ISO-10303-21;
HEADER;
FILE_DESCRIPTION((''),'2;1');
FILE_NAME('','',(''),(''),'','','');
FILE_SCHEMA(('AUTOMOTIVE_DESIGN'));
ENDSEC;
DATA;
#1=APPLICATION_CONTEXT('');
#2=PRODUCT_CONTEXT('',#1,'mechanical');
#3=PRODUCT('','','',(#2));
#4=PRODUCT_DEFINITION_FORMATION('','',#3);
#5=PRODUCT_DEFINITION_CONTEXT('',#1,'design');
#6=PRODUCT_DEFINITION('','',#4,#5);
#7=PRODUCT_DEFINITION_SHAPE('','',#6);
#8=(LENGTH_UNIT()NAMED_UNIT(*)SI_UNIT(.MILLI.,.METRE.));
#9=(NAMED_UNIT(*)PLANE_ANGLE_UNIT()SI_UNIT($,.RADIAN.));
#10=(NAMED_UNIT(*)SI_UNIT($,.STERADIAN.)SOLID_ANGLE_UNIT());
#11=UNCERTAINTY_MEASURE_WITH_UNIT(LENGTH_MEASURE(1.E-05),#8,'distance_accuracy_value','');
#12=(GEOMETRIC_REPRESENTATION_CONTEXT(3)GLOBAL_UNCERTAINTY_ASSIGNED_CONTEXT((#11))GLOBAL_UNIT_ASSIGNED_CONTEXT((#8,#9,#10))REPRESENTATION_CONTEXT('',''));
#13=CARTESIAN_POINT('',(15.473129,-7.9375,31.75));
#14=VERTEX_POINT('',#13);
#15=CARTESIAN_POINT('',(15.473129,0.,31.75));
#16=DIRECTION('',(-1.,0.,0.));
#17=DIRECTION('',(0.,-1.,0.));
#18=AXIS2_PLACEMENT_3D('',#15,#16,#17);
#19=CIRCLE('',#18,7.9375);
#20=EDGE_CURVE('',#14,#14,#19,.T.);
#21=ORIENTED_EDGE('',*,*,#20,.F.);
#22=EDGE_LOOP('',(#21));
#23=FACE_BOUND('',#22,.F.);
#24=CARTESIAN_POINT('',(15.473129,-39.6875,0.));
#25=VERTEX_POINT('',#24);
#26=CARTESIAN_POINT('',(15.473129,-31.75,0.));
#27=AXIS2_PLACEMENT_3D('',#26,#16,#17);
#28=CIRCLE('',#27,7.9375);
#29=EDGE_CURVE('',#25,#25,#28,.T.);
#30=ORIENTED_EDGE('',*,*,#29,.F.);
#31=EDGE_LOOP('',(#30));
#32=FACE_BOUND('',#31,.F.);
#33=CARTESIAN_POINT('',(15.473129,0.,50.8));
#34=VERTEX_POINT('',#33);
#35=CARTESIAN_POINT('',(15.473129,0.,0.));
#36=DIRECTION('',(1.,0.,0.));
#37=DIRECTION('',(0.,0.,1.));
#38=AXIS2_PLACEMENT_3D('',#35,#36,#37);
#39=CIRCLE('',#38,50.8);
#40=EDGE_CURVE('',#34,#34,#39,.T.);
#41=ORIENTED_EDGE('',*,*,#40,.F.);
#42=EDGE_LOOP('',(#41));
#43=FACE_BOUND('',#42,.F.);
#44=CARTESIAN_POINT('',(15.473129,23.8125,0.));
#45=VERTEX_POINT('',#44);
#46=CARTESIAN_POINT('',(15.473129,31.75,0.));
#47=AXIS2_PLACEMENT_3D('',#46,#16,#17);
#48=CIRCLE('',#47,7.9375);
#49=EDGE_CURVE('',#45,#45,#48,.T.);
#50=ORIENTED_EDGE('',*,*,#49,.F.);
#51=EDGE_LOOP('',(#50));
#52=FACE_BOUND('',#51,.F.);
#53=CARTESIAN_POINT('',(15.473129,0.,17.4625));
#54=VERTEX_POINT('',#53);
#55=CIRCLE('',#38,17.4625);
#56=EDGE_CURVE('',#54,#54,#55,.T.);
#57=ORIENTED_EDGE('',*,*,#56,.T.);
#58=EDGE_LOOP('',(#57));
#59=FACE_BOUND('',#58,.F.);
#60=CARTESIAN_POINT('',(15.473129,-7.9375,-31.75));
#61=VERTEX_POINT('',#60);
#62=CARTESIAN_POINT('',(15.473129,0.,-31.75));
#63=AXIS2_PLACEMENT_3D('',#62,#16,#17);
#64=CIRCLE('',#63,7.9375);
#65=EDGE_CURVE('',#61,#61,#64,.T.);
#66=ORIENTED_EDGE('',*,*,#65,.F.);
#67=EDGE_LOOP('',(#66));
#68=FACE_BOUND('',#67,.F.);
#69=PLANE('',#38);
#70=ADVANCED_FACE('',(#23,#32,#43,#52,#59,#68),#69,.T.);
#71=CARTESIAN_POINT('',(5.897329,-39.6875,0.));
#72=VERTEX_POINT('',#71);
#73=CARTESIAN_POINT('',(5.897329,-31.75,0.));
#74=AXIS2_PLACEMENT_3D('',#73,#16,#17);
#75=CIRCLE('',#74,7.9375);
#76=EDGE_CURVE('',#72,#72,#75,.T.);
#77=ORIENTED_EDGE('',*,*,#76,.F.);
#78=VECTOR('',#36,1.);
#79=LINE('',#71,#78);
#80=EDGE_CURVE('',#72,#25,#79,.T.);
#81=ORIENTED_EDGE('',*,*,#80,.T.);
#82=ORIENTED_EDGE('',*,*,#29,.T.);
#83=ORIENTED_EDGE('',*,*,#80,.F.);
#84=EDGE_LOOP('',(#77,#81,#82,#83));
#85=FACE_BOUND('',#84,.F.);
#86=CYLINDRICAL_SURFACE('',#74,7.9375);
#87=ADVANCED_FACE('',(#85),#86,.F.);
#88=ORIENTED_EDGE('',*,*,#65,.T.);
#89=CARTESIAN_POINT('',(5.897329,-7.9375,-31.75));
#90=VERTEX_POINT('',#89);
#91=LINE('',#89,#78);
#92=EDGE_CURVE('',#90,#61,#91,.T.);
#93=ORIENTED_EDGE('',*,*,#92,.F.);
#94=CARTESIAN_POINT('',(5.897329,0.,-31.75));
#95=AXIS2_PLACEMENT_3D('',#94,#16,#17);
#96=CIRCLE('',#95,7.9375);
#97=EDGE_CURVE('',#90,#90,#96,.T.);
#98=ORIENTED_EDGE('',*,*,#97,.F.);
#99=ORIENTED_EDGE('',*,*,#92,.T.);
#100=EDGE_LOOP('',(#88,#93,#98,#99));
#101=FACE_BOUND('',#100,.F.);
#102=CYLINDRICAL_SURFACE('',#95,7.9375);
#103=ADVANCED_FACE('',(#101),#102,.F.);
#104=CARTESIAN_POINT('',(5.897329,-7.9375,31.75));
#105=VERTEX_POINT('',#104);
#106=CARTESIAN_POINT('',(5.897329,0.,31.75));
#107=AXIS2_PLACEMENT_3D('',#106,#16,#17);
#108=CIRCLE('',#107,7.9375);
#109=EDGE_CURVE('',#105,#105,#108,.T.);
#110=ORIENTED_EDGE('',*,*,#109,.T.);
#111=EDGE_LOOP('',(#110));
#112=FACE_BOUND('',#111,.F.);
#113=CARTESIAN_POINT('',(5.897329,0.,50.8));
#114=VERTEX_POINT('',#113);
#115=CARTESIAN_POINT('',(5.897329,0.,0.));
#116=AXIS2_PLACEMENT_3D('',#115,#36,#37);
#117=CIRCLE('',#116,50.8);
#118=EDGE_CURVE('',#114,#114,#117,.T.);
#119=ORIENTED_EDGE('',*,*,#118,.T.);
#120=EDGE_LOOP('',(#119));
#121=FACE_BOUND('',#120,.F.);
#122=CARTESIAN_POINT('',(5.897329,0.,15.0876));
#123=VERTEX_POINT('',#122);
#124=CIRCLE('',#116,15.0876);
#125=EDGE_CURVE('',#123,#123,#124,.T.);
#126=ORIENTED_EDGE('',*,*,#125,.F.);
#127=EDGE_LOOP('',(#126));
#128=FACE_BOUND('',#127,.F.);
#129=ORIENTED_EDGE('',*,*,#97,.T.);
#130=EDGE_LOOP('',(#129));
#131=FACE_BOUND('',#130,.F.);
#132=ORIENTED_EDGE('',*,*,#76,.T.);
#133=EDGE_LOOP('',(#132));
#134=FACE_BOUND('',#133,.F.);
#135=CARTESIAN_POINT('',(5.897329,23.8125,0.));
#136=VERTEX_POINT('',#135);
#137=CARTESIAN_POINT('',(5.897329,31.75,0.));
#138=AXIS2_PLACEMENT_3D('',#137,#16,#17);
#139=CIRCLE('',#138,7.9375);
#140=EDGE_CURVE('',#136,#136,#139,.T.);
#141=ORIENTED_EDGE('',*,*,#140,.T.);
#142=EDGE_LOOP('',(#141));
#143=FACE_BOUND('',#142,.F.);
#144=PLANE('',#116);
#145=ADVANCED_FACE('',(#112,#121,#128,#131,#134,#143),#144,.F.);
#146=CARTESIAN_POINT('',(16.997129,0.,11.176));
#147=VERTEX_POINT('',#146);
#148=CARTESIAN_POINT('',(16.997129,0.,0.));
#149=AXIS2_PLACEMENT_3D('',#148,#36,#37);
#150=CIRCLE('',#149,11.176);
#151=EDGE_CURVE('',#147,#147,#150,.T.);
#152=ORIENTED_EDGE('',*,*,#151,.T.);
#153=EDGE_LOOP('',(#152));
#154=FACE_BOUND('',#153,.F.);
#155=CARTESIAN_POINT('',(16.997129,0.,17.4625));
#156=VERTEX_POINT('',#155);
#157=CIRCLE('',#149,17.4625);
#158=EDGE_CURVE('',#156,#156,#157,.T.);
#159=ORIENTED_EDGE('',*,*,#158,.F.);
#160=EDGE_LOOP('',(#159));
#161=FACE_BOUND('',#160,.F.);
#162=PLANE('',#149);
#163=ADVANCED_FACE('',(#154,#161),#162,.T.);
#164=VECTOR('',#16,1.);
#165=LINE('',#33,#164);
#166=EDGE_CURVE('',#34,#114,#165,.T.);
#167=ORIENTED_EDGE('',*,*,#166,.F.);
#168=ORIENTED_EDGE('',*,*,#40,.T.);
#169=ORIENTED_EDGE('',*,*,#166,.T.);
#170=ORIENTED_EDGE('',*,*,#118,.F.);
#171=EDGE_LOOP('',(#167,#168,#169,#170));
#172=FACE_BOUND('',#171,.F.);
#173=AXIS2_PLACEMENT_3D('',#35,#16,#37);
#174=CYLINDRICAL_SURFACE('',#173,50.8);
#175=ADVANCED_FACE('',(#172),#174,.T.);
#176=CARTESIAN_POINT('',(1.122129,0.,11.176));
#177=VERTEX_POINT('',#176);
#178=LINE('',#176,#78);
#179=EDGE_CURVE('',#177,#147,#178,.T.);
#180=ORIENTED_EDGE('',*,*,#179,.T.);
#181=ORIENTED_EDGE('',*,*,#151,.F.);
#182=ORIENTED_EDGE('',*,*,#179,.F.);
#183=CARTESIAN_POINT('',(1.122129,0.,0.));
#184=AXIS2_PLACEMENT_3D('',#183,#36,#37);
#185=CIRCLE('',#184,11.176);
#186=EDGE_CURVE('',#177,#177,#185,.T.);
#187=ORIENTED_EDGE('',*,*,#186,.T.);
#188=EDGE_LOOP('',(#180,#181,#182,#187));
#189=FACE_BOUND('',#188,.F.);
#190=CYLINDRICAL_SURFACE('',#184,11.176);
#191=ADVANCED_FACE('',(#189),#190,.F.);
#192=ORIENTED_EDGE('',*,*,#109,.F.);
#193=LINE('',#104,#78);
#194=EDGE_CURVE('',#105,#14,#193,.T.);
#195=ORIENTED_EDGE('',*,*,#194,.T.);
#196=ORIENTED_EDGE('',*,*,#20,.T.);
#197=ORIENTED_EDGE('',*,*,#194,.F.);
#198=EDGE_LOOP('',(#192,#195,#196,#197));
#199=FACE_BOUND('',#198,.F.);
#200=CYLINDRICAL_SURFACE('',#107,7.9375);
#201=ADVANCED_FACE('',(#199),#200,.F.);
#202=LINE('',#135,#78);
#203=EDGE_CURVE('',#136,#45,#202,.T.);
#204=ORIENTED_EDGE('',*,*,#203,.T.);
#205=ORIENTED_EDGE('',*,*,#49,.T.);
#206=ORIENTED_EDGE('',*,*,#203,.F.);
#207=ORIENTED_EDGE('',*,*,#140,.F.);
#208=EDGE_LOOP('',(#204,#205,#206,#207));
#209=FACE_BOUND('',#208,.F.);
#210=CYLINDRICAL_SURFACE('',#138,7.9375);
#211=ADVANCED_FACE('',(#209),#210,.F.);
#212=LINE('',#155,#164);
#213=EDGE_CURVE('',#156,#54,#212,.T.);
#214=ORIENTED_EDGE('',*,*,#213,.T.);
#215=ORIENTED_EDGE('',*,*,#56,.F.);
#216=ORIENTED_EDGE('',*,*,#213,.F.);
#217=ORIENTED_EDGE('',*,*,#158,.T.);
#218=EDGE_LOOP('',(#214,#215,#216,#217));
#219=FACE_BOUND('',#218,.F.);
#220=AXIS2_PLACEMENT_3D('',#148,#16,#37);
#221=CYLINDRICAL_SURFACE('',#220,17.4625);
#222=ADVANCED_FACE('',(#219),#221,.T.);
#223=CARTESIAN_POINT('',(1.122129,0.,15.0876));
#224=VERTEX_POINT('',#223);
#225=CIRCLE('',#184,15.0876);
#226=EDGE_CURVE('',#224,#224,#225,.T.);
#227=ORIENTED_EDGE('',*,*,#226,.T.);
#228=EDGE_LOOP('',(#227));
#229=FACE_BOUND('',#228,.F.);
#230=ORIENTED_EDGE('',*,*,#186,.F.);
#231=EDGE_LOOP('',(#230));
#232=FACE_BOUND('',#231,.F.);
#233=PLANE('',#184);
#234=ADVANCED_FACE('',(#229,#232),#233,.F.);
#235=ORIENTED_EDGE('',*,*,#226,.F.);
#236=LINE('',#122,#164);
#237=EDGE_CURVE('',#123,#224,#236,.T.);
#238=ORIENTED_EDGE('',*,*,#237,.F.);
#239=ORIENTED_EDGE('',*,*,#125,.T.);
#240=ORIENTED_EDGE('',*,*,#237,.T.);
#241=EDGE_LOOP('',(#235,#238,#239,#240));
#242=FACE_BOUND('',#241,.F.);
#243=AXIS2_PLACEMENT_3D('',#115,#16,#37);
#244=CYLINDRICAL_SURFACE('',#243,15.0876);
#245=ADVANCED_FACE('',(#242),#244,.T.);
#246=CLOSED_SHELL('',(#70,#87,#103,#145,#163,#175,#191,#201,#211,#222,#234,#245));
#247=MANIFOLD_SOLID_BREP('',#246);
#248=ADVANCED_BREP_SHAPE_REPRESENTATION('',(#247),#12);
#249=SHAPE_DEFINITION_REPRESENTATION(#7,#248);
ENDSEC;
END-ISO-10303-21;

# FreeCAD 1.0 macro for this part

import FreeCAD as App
import Part
import Sketcher
Q = App.Units.Quantity

doc = App.newDocument("Part")
body = doc.addObject("PartDesign::Body", "Body")

# Sketch on XZ plane
sketch1 = body.newObject("Sketcher::SketchObject", "Sketch")
sketch1.AttachmentSupport = (doc.getObject("XZ_Plane"), [""])
sketch1.MapMode = "FlatFace"
sketch1.addGeometry([
    Part.LineSegment(App.Vector(1.1, 15.1, 0), App.Vector(1.1, 11.2, 0)),  # 0
    Part.LineSegment(App.Vector(1.1, 11.2, 0), App.Vector(17, 11.2, 0)),  # 1
    Part.LineSegment(App.Vector(17, 11.2, 0), App.Vector(17, 17.5, 0)),  # 2
    Part.LineSegment(App.Vector(17, 17.5, 0), App.Vector(15.5, 17.5, 0)),  # 3
    Part.LineSegment(App.Vector(15.5, 17.5, 0), App.Vector(15.5, 50.8, 0)),  # 4
    Part.LineSegment(App.Vector(15.5, 50.8, 0), App.Vector(5.9, 50.8, 0)),  # 5
    Part.LineSegment(App.Vector(5.9, 50.8, 0), App.Vector(5.9, 15.1, 0)),  # 6
    Part.LineSegment(App.Vector(5.9, 15.1, 0), App.Vector(1.1, 15.1, 0)),  # 7
], False)
sketch1.addConstraint([
    Sketcher.Constraint("Coincident", 0, 2, 1, 1),
    Sketcher.Constraint("Coincident", 1, 2, 2, 1),
    Sketcher.Constraint("Coincident", 2, 2, 3, 1),
    Sketcher.Constraint("Coincident", 3, 2, 4, 1),
    Sketcher.Constraint("Coincident", 4, 2, 5, 1),
    Sketcher.Constraint("Coincident", 5, 2, 6, 1),
    Sketcher.Constraint("Coincident", 6, 2, 7, 1),
    Sketcher.Constraint("Coincident", 7, 2, 0, 1),
    Sketcher.Constraint("Vertical", 0),
    Sketcher.Constraint("Horizontal", 1),
    Sketcher.Constraint("Vertical", 2),
    Sketcher.Constraint("Horizontal", 3),
    Sketcher.Constraint("Vertical", 4),
    Sketcher.Constraint("Horizontal", 5),
    Sketcher.Constraint("Vertical", 6),
    Sketcher.Constraint("Horizontal", 7),
    Sketcher.Constraint("DistanceY", -1, 1, 4, 2, Q("2 in")),
    Sketcher.Constraint("DistanceX", 3, 2, 3, 1, Q("0.06 in")),
    Sketcher.Constraint("DistanceX", 1, 1, 1, 2, Q("0.625 in")),
    Sketcher.Constraint("DistanceX", 5, 2, 5, 1, Q("0.377 in")),
    Sketcher.Constraint("DistanceY", 0, 2, 0, 1, Q("0.154 in")),
    Sketcher.Constraint("DistanceY", 4, 1, 4, 2, Q("1.3125 in")),
    Sketcher.Constraint("DistanceY", 6, 2, 6, 1, Q("1.406 in")),
    Sketcher.Constraint("DistanceX", -1, 1, 0, 2, Q("1.122129 mm")),
])
revolution = body.newObject("PartDesign::Revolution", "Revolution")
revolution.Profile = sketch1
revolution.ReferenceAxis = (sketch1, ["H_Axis"])
revolution.Angle = 360

# Sketch on YZ plane
sketch2 = body.newObject("Sketcher::SketchObject", "Sketch001")
sketch2.AttachmentSupport = (doc.getObject("YZ_Plane"), [""])
sketch2.MapMode = "FlatFace"
sketch2.AttachmentOffset = App.Placement(App.Vector(0, 0, 5.897329), App.Rotation())
sketch2.addGeometry([
    Part.Circle(App.Vector(0, 32, 0), App.Vector(0, 0, 1), 8),
    Part.Circle(App.Vector(32, 0, 0), App.Vector(0, 0, 1), 8),
    Part.Circle(App.Vector(0, -32, 0), App.Vector(0, 0, 1), 8),
    Part.Circle(App.Vector(-32, 0, 0), App.Vector(0, 0, 1), 8),
], False)
sketch2.addConstraint([
    Sketcher.Constraint("Equal", 0, 1),
    Sketcher.Constraint("Equal", 1, 2),
    Sketcher.Constraint("Equal", 2, 3),
    Sketcher.Constraint("Symmetric", 0, 3, 2, 3, -1, 1),
    Sketcher.Constraint("Symmetric", 1, 3, 3, 3, -1, 1),
    Sketcher.Constraint("PointOnObject", 0, 3, -2),
    Sketcher.Constraint("PointOnObject", 1, 3, -1),
    Sketcher.Constraint("Diameter", 0, Q("0.625 in")),
    Sketcher.Constraint("DistanceY", 2, 3, 0, 3, Q("2.5 in")),
    Sketcher.Constraint("DistanceX", 3, 3, 1, 3, Q("2.5 in")),
])
pocket1 = body.newObject("PartDesign::Pocket", "Pocket")
pocket1.Profile = sketch2
pocket1.Length = Q("1.49 in")
pocket1.Reversed = True

doc.recompute()
